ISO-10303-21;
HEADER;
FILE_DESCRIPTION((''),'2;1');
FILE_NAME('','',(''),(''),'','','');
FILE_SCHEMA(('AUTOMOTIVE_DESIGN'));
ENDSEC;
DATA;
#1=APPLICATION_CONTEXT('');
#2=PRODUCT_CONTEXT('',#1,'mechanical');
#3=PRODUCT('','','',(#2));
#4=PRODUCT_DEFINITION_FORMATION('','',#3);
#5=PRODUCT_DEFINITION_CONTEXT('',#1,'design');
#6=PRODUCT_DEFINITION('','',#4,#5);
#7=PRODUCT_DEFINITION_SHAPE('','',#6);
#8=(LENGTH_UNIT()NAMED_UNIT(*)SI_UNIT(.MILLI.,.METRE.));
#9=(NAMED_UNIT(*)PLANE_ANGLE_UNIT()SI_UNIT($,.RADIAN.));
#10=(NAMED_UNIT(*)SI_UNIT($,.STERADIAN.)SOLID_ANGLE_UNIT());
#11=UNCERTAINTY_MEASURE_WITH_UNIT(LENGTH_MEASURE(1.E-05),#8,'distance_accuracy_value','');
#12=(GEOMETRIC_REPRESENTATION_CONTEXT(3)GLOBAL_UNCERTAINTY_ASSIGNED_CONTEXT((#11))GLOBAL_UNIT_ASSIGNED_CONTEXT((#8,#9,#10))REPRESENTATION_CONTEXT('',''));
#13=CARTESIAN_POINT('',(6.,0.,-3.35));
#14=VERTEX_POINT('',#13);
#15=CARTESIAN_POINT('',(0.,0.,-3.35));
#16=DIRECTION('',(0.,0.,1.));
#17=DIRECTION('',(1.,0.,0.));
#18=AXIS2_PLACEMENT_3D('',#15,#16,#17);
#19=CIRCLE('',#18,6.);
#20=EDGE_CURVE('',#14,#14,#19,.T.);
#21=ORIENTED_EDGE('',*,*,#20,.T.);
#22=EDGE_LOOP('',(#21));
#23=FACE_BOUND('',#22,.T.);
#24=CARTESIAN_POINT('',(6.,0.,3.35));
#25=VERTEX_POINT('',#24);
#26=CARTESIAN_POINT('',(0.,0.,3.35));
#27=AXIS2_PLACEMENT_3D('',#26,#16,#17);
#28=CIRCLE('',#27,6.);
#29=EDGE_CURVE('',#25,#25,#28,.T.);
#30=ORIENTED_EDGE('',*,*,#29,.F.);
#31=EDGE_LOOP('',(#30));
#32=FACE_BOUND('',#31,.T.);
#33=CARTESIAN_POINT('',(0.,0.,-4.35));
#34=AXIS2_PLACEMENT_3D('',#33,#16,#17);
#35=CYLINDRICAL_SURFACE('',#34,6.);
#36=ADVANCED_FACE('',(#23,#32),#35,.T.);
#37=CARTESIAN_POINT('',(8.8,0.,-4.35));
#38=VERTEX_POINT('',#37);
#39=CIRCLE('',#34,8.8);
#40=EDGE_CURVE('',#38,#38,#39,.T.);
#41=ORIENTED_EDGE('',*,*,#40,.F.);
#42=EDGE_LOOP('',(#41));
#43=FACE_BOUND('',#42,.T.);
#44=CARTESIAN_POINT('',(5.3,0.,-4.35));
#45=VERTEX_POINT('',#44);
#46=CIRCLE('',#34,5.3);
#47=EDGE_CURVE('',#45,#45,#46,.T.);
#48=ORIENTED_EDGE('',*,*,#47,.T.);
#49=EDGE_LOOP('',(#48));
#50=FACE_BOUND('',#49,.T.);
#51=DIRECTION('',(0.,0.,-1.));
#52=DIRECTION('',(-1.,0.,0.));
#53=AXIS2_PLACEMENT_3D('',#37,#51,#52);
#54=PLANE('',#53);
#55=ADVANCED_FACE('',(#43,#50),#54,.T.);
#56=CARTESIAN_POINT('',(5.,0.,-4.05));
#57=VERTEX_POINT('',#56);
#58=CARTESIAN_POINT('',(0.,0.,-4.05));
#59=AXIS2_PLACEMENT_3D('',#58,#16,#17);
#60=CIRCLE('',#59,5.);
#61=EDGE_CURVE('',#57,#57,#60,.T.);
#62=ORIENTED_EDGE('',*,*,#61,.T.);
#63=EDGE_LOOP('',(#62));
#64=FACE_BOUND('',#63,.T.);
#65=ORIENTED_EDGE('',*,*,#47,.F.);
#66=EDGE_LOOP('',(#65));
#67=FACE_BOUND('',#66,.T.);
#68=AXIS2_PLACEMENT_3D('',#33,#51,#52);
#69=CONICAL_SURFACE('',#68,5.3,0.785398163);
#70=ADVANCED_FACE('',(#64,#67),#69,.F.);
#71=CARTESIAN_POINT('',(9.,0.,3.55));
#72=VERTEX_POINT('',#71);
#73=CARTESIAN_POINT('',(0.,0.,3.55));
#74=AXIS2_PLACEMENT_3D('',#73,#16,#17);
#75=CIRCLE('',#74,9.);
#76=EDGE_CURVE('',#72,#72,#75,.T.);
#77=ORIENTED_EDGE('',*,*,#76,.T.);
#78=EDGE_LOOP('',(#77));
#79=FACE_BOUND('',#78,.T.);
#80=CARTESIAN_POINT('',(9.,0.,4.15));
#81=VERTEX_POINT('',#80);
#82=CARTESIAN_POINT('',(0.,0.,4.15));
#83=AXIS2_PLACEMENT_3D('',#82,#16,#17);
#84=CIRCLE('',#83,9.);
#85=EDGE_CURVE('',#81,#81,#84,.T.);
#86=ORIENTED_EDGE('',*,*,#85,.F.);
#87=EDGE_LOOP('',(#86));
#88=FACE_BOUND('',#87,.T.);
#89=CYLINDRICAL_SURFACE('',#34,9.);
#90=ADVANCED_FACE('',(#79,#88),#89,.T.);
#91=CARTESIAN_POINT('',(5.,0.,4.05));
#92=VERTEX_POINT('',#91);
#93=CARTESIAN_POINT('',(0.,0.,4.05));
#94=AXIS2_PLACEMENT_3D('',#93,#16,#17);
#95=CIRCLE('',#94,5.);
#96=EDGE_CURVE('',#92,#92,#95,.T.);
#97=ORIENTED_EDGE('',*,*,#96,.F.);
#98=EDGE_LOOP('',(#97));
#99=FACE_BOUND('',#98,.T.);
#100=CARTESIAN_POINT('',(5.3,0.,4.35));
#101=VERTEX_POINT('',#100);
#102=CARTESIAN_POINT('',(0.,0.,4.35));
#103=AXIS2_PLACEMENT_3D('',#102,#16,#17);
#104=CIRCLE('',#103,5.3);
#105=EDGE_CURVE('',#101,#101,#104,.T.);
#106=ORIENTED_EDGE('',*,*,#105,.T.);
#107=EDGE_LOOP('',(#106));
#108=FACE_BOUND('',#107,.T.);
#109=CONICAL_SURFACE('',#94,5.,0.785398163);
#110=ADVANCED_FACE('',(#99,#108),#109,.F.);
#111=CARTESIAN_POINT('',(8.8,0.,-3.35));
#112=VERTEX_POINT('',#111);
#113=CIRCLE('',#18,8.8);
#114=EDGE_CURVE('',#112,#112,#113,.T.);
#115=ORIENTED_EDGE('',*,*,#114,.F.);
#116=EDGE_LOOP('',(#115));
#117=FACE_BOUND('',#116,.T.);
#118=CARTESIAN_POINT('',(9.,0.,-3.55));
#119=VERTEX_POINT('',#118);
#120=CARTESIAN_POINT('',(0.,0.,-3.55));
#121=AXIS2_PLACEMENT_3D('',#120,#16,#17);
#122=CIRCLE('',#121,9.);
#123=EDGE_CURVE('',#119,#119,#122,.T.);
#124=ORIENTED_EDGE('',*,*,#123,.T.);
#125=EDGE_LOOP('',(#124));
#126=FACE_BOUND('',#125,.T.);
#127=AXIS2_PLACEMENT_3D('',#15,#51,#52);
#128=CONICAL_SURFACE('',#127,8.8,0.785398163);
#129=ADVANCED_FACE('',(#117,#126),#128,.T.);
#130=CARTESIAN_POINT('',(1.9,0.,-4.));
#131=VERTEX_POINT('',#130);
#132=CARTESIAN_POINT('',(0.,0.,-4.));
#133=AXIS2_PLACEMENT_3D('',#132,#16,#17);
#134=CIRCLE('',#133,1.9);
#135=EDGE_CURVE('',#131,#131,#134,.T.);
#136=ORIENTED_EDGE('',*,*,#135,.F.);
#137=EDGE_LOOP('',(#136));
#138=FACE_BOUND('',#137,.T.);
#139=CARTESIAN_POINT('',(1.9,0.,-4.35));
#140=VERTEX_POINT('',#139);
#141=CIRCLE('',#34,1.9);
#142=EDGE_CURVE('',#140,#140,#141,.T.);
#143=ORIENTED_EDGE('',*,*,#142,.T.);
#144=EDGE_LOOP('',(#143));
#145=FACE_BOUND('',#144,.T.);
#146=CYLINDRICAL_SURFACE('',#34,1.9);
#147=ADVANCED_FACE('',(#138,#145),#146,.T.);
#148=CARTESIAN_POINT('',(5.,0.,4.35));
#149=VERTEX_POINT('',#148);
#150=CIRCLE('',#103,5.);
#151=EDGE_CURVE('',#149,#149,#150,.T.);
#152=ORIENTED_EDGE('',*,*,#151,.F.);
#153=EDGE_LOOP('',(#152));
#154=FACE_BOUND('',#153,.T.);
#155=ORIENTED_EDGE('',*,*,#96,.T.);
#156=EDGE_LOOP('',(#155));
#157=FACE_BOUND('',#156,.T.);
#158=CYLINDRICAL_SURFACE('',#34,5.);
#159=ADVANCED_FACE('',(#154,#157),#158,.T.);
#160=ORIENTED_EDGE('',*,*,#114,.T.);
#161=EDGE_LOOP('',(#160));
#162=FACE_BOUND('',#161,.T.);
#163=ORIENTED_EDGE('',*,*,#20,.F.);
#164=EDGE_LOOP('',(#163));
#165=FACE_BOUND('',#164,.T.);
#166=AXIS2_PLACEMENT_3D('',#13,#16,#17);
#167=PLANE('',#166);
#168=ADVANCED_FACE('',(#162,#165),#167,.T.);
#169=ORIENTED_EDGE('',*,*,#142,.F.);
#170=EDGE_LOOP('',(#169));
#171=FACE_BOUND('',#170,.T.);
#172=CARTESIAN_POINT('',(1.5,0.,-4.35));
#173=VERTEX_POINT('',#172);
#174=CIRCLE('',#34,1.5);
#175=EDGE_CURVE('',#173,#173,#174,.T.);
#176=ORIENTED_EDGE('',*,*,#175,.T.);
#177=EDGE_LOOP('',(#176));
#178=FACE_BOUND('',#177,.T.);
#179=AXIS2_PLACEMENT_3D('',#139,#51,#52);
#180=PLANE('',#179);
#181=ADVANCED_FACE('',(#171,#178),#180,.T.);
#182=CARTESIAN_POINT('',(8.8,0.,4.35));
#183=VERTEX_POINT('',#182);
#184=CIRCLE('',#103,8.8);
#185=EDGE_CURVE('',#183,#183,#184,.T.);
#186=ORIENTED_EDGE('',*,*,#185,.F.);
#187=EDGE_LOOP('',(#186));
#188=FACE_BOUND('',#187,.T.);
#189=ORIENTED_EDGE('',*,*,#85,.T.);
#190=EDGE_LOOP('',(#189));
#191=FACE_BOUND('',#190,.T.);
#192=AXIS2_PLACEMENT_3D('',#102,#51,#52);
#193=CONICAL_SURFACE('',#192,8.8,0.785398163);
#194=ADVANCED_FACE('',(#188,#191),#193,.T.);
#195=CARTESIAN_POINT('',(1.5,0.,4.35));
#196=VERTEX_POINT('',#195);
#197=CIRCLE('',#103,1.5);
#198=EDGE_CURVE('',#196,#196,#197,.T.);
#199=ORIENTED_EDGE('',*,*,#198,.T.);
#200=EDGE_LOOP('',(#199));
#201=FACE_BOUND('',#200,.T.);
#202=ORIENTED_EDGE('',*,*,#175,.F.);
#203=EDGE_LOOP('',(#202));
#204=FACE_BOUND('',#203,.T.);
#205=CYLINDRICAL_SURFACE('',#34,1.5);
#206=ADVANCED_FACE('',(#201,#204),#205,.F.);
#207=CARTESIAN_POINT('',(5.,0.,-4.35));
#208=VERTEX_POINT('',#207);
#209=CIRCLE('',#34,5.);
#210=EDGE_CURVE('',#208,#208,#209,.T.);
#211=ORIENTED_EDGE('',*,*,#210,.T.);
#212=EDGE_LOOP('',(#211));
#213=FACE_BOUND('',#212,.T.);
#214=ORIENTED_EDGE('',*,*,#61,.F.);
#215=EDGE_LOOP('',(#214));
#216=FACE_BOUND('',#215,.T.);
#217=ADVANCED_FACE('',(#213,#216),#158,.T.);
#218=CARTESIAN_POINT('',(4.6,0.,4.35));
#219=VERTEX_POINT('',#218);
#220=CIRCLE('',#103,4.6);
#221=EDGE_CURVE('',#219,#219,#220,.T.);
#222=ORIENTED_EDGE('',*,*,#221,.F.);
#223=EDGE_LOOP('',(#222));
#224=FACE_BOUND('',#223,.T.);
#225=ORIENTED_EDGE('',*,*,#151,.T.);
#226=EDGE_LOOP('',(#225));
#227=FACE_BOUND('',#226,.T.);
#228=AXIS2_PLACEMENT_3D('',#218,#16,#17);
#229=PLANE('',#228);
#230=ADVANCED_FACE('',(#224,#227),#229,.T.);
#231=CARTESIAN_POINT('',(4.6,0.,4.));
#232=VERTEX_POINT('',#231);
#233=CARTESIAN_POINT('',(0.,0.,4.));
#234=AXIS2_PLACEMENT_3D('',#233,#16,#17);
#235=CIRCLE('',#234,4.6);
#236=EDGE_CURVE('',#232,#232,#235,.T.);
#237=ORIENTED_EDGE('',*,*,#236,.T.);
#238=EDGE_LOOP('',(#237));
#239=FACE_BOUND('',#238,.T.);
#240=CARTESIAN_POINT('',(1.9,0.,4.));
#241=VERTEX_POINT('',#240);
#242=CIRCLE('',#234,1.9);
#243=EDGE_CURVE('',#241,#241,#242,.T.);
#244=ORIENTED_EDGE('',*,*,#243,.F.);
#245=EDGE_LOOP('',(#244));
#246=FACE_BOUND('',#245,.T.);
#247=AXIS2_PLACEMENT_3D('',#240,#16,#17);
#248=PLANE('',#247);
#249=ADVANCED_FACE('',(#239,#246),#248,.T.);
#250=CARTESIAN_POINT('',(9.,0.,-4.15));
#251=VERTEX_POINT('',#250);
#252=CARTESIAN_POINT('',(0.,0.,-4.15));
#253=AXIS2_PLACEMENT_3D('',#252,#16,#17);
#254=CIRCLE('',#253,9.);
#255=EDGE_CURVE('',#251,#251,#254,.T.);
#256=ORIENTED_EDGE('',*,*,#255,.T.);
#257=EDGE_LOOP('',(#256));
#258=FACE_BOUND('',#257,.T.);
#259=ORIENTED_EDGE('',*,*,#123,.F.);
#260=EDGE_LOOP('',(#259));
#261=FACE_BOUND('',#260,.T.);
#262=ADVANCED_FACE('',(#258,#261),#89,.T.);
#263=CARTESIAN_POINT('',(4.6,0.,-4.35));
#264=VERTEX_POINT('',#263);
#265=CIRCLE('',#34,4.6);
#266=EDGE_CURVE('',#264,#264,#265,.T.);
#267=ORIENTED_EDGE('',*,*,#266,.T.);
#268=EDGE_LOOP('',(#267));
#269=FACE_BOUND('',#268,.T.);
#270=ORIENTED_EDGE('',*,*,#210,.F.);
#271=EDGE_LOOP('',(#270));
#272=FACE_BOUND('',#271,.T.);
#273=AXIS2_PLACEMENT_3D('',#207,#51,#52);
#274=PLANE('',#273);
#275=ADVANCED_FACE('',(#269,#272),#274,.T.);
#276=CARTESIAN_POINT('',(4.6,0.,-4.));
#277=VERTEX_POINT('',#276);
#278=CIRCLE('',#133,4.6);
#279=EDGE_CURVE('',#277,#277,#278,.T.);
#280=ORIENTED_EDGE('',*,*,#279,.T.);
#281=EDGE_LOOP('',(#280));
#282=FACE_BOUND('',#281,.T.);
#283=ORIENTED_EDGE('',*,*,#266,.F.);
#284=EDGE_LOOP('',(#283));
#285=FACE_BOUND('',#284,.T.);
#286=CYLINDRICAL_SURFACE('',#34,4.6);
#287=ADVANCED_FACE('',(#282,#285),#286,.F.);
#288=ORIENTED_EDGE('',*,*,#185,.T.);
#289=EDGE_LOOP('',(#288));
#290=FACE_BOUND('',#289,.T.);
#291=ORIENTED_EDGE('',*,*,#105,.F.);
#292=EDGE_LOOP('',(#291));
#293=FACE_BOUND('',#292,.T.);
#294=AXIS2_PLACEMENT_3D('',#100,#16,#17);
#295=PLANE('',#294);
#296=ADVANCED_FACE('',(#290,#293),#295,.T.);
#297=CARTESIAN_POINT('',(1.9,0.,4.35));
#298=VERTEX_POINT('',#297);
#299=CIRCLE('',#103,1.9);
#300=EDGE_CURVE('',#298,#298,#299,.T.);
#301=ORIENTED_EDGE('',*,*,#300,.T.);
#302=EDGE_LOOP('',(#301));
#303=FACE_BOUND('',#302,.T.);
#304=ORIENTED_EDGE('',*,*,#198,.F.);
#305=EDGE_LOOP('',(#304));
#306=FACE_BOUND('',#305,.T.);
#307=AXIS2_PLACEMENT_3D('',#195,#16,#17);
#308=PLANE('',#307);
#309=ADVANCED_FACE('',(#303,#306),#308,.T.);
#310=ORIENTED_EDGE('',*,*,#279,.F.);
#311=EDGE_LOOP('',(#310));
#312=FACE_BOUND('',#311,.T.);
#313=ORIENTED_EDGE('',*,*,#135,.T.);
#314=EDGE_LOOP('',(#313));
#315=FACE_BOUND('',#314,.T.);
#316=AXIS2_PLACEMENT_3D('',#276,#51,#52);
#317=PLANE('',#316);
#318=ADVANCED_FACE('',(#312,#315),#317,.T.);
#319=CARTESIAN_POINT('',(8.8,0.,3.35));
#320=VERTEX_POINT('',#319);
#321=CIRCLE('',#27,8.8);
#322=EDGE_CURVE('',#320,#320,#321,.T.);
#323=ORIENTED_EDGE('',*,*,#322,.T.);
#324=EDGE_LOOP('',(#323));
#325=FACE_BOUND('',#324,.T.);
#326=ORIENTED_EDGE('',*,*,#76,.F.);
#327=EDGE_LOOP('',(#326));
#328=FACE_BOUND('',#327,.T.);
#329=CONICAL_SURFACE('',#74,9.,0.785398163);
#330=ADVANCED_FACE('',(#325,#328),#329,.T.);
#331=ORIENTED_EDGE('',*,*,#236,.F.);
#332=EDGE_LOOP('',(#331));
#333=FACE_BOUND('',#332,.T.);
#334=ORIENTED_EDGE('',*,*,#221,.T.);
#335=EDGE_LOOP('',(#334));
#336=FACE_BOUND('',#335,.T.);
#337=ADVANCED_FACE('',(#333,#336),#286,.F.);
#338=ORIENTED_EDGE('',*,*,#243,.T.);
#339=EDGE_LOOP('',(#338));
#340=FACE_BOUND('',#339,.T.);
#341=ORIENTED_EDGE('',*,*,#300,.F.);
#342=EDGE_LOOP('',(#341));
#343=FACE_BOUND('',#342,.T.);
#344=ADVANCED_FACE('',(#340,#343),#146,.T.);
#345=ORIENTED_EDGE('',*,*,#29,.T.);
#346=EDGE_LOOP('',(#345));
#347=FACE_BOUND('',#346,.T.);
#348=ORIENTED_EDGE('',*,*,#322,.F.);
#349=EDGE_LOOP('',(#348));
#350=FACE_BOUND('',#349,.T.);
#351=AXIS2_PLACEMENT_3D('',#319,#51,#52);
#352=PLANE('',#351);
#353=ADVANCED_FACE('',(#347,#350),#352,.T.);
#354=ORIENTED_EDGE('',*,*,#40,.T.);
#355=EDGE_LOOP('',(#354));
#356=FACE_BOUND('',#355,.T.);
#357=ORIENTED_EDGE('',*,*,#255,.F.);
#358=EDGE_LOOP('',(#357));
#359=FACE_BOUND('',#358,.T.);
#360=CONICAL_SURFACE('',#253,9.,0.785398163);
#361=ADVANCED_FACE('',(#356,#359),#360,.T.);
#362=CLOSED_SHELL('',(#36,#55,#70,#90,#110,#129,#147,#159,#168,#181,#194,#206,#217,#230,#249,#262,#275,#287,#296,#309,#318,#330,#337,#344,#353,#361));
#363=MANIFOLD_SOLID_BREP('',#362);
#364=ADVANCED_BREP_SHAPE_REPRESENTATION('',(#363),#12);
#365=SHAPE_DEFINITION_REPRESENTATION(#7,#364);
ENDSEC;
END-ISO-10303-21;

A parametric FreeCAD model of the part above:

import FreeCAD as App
import Part
import Sketcher
from FreeCAD import Vector
Q = App.Units.Quantity


def add_polygon(sketch, points):
    """Adds a closed chain of lines whose ends are joined by coincident constraints."""
    first, n = sketch.GeometryCount, len(points)
    for a, b in zip(points, points[1:] + points[:1]):
        sketch.addGeometry(Part.LineSegment(App.Vector(*a, 0), App.Vector(*b, 0)), False)
    for i in range(n):
        sketch.addConstraint(Sketcher.Constraint("Coincident", first + i, 2, first + (i + 1) % n, 1))

doc = App.newDocument("Part")
body = doc.addObject("PartDesign::Body", "Body")

sketch1 = body.newObject("Sketcher::SketchObject", "Sketch")
sketch1.AttachmentSupport = (doc.getObject("XZ_Plane"), [""])
sketch1.MapMode = "FlatFace"
add_polygon(sketch1, [(4.6, -4.35), (4.6, -4), (1.9, -4), (1.9, -4.35), (1.5, -4.35), (1.5, 4.35), (1.9, 4.35), (1.9, 4), (4.6, 4), (4.6, 4.35), (5, 4.35), (5, 4.05), (5.3, 4.35), (8.8, 4.35), (9, 4.15), (9, 3.55), (8.8, 3.35), (6, 3.35), (6, -3.35), (8.8, -3.35), (9, -3.55), (9, -4.15), (8.8, -4.35), (5.3, -4.35), (5, -4.05), (5, -4.35)])
sketch1.addConstraint([
    Sketcher.Constraint("Vertical", 0),
    Sketcher.Constraint("Horizontal", 1),
    Sketcher.Constraint("Vertical", 2),
    Sketcher.Constraint("Horizontal", 3),
    Sketcher.Constraint("Vertical", 4),
    Sketcher.Constraint("Horizontal", 5),
    Sketcher.Constraint("Vertical", 6),
    Sketcher.Constraint("Horizontal", 7),
    Sketcher.Constraint("Vertical", 8),
    Sketcher.Constraint("Horizontal", 9),
    Sketcher.Constraint("Vertical", 10),
    Sketcher.Constraint("Horizontal", 12),
    Sketcher.Constraint("Vertical", 14),
    Sketcher.Constraint("Horizontal", 16),
    Sketcher.Constraint("Vertical", 17),
    Sketcher.Constraint("Horizontal", 18),
    Sketcher.Constraint("Vertical", 20),
    Sketcher.Constraint("Horizontal", 22),
    Sketcher.Constraint("Vertical", 24),
    Sketcher.Constraint("Horizontal", 25),
    Sketcher.Constraint("Symmetric", 2, 2, 5, 2, -1),
    Sketcher.Constraint("Symmetric", 0, 2, 7, 2, -1),
    Sketcher.Constraint("Symmetric", 15, 2, 18, 2, -1),
    Sketcher.Constraint("Symmetric", 14, 2, 19, 2, -1),
    Sketcher.Constraint("Symmetric", 12, 2, 21, 2, -1),
    Sketcher.Constraint("Symmetric", 10, 2, 23, 2, -1),
    Sketcher.Constraint("Perpendicular", 11, 13),
    Sketcher.Constraint("Perpendicular", 13, 15),
    Sketcher.Constraint("Perpendicular", 15, 19),
    Sketcher.Constraint("Perpendicular", 19, 21),
    Sketcher.Constraint("Perpendicular", 21, 23),
    Sketcher.Constraint("Horizontal", 5, 2, 8, 2),
    Sketcher.Constraint("Horizontal", 9, 2, 11, 2),
    Sketcher.Constraint("Horizontal", 22, 2, 24, 2),
    Sketcher.Constraint("Vertical", 12, 2, 15, 2),
    Sketcher.Constraint("Equal", 5, 9),
    Sketcher.Constraint("DistanceX", 1, 2, 1, 1, Q("2.7 mm")),
    Sketcher.Constraint("DistanceX", 3, 2, 3, 1, Q("0.4 mm")),
    Sketcher.Constraint("DistanceX", 12, 1, 12, 2, Q("3.5 mm")),
    Sketcher.Constraint("DistanceX", 16, 2, 16, 1, Q("2.8 mm")),
    Sketcher.Constraint("DistanceY", 4, 1, 4, 2, Q("8.7 mm")),
    Sketcher.Constraint("DistanceY", 10, 2, 10, 1, Q("0.3 mm")),
    Sketcher.Constraint("DistanceY", 14, 2, 14, 1, Q("0.6 mm")),
    Sketcher.Constraint("DistanceY", 17, 2, 17, 1, Q("6.7 mm")),
    Sketcher.Constraint("DistanceY", 0, 2, -1, 1, Q("4 mm")),
    Sketcher.Constraint("DistanceX", -1, 1, 9, 2, Q("5 mm")),
])
revolution = body.newObject("PartDesign::Revolution", "Revolution")
revolution.Profile = sketch1
revolution.ReferenceAxis = (sketch1, ["V_Axis"])
revolution.Angle = 360

doc.recompute()
